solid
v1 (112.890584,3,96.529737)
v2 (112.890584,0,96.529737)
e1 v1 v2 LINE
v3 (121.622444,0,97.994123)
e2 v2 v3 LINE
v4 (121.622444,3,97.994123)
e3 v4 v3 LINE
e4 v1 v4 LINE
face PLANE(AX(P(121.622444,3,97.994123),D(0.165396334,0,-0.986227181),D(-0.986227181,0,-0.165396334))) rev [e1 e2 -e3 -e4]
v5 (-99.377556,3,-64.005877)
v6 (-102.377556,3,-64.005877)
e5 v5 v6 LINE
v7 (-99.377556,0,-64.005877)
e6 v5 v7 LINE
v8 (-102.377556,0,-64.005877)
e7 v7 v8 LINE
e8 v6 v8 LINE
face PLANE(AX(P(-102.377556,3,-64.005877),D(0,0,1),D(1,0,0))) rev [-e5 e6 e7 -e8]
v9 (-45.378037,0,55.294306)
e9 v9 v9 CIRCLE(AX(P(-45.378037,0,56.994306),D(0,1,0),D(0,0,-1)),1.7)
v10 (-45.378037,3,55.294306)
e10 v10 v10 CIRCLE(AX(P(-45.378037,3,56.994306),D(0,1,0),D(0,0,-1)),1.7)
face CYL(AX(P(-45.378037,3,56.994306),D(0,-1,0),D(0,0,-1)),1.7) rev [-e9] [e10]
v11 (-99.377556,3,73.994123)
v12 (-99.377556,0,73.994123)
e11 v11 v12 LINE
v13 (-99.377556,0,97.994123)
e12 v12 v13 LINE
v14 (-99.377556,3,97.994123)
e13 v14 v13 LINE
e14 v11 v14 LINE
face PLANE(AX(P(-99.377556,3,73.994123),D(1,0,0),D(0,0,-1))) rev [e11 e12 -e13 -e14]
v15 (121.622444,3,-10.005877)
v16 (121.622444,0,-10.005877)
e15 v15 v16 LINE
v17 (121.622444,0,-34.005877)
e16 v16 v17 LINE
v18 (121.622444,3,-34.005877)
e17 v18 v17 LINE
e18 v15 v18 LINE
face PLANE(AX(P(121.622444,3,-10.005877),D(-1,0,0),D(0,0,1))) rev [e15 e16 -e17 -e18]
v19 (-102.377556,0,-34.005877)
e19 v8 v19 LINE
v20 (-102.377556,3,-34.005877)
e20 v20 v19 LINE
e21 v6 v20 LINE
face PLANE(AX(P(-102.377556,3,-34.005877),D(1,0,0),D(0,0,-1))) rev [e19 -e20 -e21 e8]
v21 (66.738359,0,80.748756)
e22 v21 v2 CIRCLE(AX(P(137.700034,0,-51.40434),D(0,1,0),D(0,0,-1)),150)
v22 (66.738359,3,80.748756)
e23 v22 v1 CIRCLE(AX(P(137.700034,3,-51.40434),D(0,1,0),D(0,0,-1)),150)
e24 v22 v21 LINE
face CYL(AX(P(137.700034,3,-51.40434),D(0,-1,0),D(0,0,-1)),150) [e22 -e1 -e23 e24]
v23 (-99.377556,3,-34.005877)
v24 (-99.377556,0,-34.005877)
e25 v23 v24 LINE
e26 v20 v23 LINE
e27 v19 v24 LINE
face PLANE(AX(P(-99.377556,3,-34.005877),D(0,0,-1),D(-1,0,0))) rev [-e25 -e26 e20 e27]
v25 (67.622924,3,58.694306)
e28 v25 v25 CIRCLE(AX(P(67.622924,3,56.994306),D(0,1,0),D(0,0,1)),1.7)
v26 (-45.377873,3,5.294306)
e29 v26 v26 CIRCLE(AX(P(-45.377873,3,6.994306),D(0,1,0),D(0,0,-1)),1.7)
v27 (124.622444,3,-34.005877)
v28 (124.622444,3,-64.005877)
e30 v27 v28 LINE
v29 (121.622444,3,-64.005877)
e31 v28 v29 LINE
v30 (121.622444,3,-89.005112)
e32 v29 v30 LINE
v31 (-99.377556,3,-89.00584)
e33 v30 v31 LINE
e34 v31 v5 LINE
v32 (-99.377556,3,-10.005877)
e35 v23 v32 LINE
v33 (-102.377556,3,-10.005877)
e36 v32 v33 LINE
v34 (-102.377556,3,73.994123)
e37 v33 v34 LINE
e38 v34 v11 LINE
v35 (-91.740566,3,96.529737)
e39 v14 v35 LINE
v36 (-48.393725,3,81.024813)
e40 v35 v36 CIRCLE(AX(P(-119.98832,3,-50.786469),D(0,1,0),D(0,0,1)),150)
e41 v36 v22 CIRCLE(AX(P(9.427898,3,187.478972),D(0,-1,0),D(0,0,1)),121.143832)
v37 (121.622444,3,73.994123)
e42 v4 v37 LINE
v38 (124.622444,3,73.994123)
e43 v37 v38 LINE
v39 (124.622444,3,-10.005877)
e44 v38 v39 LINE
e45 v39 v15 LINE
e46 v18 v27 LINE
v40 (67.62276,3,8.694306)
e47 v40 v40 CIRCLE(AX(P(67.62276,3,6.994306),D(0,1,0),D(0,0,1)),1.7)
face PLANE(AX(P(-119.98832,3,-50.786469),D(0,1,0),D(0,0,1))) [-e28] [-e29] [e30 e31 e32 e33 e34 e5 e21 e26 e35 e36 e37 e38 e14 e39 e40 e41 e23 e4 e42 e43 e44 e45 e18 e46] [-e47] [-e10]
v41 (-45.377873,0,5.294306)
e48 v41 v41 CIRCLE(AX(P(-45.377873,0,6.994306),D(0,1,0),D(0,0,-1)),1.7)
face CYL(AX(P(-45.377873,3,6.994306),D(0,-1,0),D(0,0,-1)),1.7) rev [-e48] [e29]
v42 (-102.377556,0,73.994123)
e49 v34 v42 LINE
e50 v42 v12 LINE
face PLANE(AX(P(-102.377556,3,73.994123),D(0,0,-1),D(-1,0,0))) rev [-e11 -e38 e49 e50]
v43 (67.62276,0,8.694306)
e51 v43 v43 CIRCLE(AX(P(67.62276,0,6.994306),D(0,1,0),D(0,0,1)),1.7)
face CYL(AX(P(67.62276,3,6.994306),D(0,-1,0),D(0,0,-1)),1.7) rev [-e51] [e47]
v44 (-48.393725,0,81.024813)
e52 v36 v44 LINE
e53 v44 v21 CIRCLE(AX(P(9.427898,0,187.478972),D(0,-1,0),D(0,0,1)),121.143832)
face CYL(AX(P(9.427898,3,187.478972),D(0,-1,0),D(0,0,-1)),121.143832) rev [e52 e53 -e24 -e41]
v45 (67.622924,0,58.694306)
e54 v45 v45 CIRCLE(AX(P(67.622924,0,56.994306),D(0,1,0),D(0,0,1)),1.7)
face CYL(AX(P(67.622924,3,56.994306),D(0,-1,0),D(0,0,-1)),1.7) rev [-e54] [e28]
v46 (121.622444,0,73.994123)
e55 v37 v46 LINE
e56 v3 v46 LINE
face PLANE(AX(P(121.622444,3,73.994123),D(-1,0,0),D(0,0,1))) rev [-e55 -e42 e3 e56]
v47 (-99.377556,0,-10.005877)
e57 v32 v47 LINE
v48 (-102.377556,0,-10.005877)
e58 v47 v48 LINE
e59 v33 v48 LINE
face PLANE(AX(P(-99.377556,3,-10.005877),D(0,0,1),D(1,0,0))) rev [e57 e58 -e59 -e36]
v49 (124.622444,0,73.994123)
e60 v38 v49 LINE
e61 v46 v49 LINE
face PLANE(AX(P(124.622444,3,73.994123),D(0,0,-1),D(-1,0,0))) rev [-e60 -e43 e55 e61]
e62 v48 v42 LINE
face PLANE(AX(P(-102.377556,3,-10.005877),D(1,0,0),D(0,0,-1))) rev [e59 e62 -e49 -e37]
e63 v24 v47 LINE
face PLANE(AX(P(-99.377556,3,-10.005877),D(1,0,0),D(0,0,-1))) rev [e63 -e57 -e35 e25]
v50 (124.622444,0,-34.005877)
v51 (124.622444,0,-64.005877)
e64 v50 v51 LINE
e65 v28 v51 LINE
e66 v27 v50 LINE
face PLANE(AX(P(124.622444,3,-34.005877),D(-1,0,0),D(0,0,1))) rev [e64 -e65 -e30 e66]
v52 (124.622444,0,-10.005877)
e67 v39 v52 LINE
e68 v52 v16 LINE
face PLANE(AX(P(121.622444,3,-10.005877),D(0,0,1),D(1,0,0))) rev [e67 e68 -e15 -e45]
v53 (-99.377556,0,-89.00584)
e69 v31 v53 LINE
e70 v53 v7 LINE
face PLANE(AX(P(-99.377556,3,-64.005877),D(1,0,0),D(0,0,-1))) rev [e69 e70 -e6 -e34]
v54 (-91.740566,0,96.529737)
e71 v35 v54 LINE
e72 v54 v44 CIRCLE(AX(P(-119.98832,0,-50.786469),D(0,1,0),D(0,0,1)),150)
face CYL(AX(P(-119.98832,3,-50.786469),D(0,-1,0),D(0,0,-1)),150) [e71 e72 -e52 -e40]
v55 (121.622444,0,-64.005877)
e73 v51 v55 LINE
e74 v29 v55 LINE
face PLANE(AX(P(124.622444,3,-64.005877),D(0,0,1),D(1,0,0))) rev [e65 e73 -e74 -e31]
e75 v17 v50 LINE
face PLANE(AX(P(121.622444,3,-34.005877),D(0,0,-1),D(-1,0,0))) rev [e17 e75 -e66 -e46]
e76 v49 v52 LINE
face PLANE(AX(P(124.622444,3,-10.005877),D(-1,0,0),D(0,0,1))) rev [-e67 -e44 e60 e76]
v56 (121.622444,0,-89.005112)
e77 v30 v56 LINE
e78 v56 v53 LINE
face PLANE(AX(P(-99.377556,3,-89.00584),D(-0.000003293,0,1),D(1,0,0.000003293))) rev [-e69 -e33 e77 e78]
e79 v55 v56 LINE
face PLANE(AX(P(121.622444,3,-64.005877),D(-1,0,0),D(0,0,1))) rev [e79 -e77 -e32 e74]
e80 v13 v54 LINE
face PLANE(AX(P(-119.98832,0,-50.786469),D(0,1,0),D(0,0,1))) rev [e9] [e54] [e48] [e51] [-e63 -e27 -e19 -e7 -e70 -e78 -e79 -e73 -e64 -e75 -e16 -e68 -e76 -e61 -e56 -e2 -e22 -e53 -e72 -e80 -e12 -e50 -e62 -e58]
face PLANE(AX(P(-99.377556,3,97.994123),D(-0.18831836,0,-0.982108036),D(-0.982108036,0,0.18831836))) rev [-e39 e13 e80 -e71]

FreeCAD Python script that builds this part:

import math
import FreeCAD as App
import Part
import Sketcher
Q = App.Units.Quantity

doc = App.newDocument("Part")
body = doc.addObject("PartDesign::Body", "Body")

# Sketch on XZ plane
sketch1 = doc.addObject("Sketcher::SketchObject", "Sketch")
body.addObject(sketch1)
sketch1.AttachmentSupport = (doc.XZ_Plane, [""])
sketch1.MapMode = "FlatFace"
sketch1.addGeometry([
    Part.LineSegment(App.Vector(-99.4, -10, 0), App.Vector(-102.4, -10, 0)),  # 0
    Part.LineSegment(App.Vector(-102.4, -10, 0), App.Vector(-102.4, 74, 0)),  # 1
    Part.LineSegment(App.Vector(-102.4, 74, 0), App.Vector(-99.4, 74, 0)),  # 2
    Part.LineSegment(App.Vector(-99.4, 74, 0), App.Vector(-99.4, 98, 0)),  # 3
    Part.LineSegment(App.Vector(-99.4, 98, 0), App.Vector(-91.7, 96.5, 0)),  # 4
    Part.ArcOfCircle(Part.Circle(App.Vector(-120, -50.8, 0), App.Vector(0, 0, 1), 150), math.radians(61.49), math.radians(79.15)),  # 5
    Part.ArcOfCircle(Part.Circle(App.Vector(9.4, 187.5, 0), App.Vector(0, 0, 1), 121.1), math.radians(-119), math.radians(-62)),  # 6
    Part.ArcOfCircle(Part.Circle(App.Vector(137.7, -51.4, 0), App.Vector(0, 0, 1), 150), math.radians(99.52), math.radians(118.23)),  # 7
    Part.LineSegment(App.Vector(112.9, 96.5, 0), App.Vector(121.6, 98, 0)),  # 8
    Part.LineSegment(App.Vector(121.6, 98, 0), App.Vector(121.6, 74, 0)),  # 9
    Part.LineSegment(App.Vector(121.6, 74, 0), App.Vector(124.6, 74, 0)),  # 10
    Part.LineSegment(App.Vector(124.6, 74, 0), App.Vector(124.6, -10, 0)),  # 11
    Part.LineSegment(App.Vector(124.6, -10, 0), App.Vector(121.6, -10, 0)),  # 12
    Part.LineSegment(App.Vector(121.6, -10, 0), App.Vector(121.6, -34, 0)),  # 13
    Part.LineSegment(App.Vector(121.6, -34, 0), App.Vector(124.6, -34, 0)),  # 14
    Part.LineSegment(App.Vector(124.6, -34, 0), App.Vector(124.6, -64, 0)),  # 15
    Part.LineSegment(App.Vector(124.6, -64, 0), App.Vector(121.6, -64, 0)),  # 16
    Part.LineSegment(App.Vector(121.6, -64, 0), App.Vector(121.6, -89, 0)),  # 17
    Part.LineSegment(App.Vector(121.6, -89, 0), App.Vector(-99.4, -89, 0)),  # 18
    Part.LineSegment(App.Vector(-99.4, -89, 0), App.Vector(-99.4, -64, 0)),  # 19
    Part.LineSegment(App.Vector(-99.4, -64, 0), App.Vector(-102.4, -64, 0)),  # 20
    Part.LineSegment(App.Vector(-102.4, -64, 0), App.Vector(-102.4, -34, 0)),  # 21
    Part.LineSegment(App.Vector(-102.4, -34, 0), App.Vector(-99.4, -34, 0)),  # 22
    Part.LineSegment(App.Vector(-99.4, -34, 0), App.Vector(-99.4, -10, 0)),  # 23
    Part.Circle(App.Vector(-45.4, 57, 0), App.Vector(0, 0, 1), 1.7),  # 24
    Part.Circle(App.Vector(67.6, 57, 0), App.Vector(0, 0, 1), 1.7),  # 25
    Part.Circle(App.Vector(-45.4, 7, 0), App.Vector(0, 0, 1), 1.7),  # 26
    Part.Circle(App.Vector(67.6, 7, 0), App.Vector(0, 0, 1), 1.7),  # 27
], False)
sketch1.addConstraint([
    Sketcher.Constraint("Coincident", 0, 2, 1, 1),
    Sketcher.Constraint("Coincident", 1, 2, 2, 1),
    Sketcher.Constraint("Coincident", 2, 2, 3, 1),
    Sketcher.Constraint("Coincident", 3, 2, 4, 1),
    Sketcher.Constraint("Tangent", 4, 2, 5, 2),
    Sketcher.Constraint("Tangent", 5, 1, 6, 1),
    Sketcher.Constraint("Tangent", 6, 2, 7, 2),
    Sketcher.Constraint("Tangent", 7, 1, 8, 1),
    Sketcher.Constraint("Coincident", 8, 2, 9, 1),
    Sketcher.Constraint("Coincident", 9, 2, 10, 1),
    Sketcher.Constraint("Coincident", 10, 2, 11, 1),
    Sketcher.Constraint("Coincident", 11, 2, 12, 1),
    Sketcher.Constraint("Coincident", 12, 2, 13, 1),
    Sketcher.Constraint("Coincident", 13, 2, 14, 1),
    Sketcher.Constraint("Coincident", 14, 2, 15, 1),
    Sketcher.Constraint("Coincident", 15, 2, 16, 1),
    Sketcher.Constraint("Coincident", 16, 2, 17, 1),
    Sketcher.Constraint("Coincident", 17, 2, 18, 1),
    Sketcher.Constraint("Coincident", 18, 2, 19, 1),
    Sketcher.Constraint("Coincident", 19, 2, 20, 1),
    Sketcher.Constraint("Coincident", 20, 2, 21, 1),
    Sketcher.Constraint("Coincident", 21, 2, 22, 1),
    Sketcher.Constraint("Coincident", 22, 2, 23, 1),
    Sketcher.Constraint("Coincident", 23, 2, 0, 1),
    Sketcher.Constraint("Horizontal", 0),
    Sketcher.Constraint("Vertical", 1),
    Sketcher.Constraint("Horizontal", 2),
    Sketcher.Constraint("Vertical", 3),
    Sketcher.Constraint("Vertical", 9),
    Sketcher.Constraint("Horizontal", 10),
    Sketcher.Constraint("Vertical", 11),
    Sketcher.Constraint("Horizontal", 12),
    Sketcher.Constraint("Vertical", 13),
    Sketcher.Constraint("Horizontal", 14),
    Sketcher.Constraint("Vertical", 15),
    Sketcher.Constraint("Horizontal", 16),
    Sketcher.Constraint("Vertical", 17),
    Sketcher.Constraint("Vertical", 19),
    Sketcher.Constraint("Horizontal", 20),
    Sketcher.Constraint("Vertical", 21),
    Sketcher.Constraint("Horizontal", 22),
    Sketcher.Constraint("Vertical", 23),
    Sketcher.Constraint("Equal", 5, 7),
    Sketcher.Constraint("Equal", 24, 25),
    Sketcher.Constraint("Equal", 25, 26),
    Sketcher.Constraint("Equal", 26, 27),
    Sketcher.Constraint("Horizontal", 24, 3, 25, 3),
    Sketcher.Constraint("Horizontal", 26, 3, 27, 3),
    Sketcher.Constraint("Horizontal", 4, 2, 7, 1),
    Sketcher.Constraint("Horizontal", 3, 2, 8, 2),
    Sketcher.Constraint("Horizontal", 2, 2, 9, 2),
    Sketcher.Constraint("Horizontal", 0, 2, 11, 2),
    Sketcher.Constraint("Horizontal", 16, 2, 19, 2),
    Sketcher.Constraint("Horizontal", 14, 2, 21, 2),
    Sketcher.Constraint("Vertical", 9, 2, 12, 2),
    Sketcher.Constraint("Vertical", 11, 2, 14, 2),
    Sketcher.Constraint("Vertical", 13, 2, 16, 2),
    Sketcher.Constraint("Vertical", 3, 2, 18, 2),
    Sketcher.Constraint("Vertical", 1, 2, 20, 2),
    Sketcher.Constraint("Vertical", 19, 2, 22, 2),
    Sketcher.Constraint("Equal", 2, 10),
    Sketcher.Constraint("Equal", 9, 13),
    Sketcher.Constraint("Radius", 5, Q("150 mm")),
    Sketcher.Constraint("Diameter", 24, Q("3.4 mm")),
    Sketcher.Constraint("DistanceX", 0, 2, 0, 1, Q("3 mm")),
    Sketcher.Constraint("DistanceY", 1, 1, 1, 2, Q("84 mm")),
    Sketcher.Constraint("DistanceY", 3, 1, 3, 2, Q("24 mm")),
    Sketcher.Constraint("DistanceY", 15, 2, 15, 1, Q("30 mm")),
    Sketcher.Constraint("Distance", 18, Q("221 mm")),
    Sketcher.Constraint("DistanceY", 26, 3, 24, 3, Q("50 mm")),
    Sketcher.Constraint("Radius", 6, Q("121.143832 mm")),
    Sketcher.Constraint("Distance", 8, Q("8.853802 mm")),
    Sketcher.Constraint("DistanceX", -1, 1, 6, 3, Q("9.427898 mm")),
    Sketcher.Constraint("DistanceX", 6, 2, 27, 3, Q("0.8844 mm")),
    Sketcher.Constraint("Distance", 4, Q("7.776121 mm")),
    Sketcher.Constraint("DistanceY", 17, 2, 17, 1, Q("24.999235 mm")),
    Sketcher.Constraint("DistanceY", 19, 1, 19, 2, Q("24.999963 mm")),
    Sketcher.Constraint("DistanceX", 5, 3, -1, 1, Q("119.98832 mm")),
    Sketcher.Constraint("DistanceY", 5, 3, -1, 1, Q("50.786469 mm")),
    Sketcher.Constraint("DistanceX", 24, 3, 7, 3, Q("183.078071 mm")),
    Sketcher.Constraint("DistanceX", 24, 3, 25, 3, Q("113.000962 mm")),
    Sketcher.Constraint("DistanceX", 26, 3, 6, 3, Q("54.805771 mm")),
    Sketcher.Constraint("DistanceY", 24, 3, 4, 2, Q("39.53543 mm")),
])
pad1 = doc.addObject("PartDesign::Pad", "Pad")
body.addObject(pad1)
pad1.Profile = sketch1
pad1.Length = 3
pad1.Reversed = True

doc.recompute()
